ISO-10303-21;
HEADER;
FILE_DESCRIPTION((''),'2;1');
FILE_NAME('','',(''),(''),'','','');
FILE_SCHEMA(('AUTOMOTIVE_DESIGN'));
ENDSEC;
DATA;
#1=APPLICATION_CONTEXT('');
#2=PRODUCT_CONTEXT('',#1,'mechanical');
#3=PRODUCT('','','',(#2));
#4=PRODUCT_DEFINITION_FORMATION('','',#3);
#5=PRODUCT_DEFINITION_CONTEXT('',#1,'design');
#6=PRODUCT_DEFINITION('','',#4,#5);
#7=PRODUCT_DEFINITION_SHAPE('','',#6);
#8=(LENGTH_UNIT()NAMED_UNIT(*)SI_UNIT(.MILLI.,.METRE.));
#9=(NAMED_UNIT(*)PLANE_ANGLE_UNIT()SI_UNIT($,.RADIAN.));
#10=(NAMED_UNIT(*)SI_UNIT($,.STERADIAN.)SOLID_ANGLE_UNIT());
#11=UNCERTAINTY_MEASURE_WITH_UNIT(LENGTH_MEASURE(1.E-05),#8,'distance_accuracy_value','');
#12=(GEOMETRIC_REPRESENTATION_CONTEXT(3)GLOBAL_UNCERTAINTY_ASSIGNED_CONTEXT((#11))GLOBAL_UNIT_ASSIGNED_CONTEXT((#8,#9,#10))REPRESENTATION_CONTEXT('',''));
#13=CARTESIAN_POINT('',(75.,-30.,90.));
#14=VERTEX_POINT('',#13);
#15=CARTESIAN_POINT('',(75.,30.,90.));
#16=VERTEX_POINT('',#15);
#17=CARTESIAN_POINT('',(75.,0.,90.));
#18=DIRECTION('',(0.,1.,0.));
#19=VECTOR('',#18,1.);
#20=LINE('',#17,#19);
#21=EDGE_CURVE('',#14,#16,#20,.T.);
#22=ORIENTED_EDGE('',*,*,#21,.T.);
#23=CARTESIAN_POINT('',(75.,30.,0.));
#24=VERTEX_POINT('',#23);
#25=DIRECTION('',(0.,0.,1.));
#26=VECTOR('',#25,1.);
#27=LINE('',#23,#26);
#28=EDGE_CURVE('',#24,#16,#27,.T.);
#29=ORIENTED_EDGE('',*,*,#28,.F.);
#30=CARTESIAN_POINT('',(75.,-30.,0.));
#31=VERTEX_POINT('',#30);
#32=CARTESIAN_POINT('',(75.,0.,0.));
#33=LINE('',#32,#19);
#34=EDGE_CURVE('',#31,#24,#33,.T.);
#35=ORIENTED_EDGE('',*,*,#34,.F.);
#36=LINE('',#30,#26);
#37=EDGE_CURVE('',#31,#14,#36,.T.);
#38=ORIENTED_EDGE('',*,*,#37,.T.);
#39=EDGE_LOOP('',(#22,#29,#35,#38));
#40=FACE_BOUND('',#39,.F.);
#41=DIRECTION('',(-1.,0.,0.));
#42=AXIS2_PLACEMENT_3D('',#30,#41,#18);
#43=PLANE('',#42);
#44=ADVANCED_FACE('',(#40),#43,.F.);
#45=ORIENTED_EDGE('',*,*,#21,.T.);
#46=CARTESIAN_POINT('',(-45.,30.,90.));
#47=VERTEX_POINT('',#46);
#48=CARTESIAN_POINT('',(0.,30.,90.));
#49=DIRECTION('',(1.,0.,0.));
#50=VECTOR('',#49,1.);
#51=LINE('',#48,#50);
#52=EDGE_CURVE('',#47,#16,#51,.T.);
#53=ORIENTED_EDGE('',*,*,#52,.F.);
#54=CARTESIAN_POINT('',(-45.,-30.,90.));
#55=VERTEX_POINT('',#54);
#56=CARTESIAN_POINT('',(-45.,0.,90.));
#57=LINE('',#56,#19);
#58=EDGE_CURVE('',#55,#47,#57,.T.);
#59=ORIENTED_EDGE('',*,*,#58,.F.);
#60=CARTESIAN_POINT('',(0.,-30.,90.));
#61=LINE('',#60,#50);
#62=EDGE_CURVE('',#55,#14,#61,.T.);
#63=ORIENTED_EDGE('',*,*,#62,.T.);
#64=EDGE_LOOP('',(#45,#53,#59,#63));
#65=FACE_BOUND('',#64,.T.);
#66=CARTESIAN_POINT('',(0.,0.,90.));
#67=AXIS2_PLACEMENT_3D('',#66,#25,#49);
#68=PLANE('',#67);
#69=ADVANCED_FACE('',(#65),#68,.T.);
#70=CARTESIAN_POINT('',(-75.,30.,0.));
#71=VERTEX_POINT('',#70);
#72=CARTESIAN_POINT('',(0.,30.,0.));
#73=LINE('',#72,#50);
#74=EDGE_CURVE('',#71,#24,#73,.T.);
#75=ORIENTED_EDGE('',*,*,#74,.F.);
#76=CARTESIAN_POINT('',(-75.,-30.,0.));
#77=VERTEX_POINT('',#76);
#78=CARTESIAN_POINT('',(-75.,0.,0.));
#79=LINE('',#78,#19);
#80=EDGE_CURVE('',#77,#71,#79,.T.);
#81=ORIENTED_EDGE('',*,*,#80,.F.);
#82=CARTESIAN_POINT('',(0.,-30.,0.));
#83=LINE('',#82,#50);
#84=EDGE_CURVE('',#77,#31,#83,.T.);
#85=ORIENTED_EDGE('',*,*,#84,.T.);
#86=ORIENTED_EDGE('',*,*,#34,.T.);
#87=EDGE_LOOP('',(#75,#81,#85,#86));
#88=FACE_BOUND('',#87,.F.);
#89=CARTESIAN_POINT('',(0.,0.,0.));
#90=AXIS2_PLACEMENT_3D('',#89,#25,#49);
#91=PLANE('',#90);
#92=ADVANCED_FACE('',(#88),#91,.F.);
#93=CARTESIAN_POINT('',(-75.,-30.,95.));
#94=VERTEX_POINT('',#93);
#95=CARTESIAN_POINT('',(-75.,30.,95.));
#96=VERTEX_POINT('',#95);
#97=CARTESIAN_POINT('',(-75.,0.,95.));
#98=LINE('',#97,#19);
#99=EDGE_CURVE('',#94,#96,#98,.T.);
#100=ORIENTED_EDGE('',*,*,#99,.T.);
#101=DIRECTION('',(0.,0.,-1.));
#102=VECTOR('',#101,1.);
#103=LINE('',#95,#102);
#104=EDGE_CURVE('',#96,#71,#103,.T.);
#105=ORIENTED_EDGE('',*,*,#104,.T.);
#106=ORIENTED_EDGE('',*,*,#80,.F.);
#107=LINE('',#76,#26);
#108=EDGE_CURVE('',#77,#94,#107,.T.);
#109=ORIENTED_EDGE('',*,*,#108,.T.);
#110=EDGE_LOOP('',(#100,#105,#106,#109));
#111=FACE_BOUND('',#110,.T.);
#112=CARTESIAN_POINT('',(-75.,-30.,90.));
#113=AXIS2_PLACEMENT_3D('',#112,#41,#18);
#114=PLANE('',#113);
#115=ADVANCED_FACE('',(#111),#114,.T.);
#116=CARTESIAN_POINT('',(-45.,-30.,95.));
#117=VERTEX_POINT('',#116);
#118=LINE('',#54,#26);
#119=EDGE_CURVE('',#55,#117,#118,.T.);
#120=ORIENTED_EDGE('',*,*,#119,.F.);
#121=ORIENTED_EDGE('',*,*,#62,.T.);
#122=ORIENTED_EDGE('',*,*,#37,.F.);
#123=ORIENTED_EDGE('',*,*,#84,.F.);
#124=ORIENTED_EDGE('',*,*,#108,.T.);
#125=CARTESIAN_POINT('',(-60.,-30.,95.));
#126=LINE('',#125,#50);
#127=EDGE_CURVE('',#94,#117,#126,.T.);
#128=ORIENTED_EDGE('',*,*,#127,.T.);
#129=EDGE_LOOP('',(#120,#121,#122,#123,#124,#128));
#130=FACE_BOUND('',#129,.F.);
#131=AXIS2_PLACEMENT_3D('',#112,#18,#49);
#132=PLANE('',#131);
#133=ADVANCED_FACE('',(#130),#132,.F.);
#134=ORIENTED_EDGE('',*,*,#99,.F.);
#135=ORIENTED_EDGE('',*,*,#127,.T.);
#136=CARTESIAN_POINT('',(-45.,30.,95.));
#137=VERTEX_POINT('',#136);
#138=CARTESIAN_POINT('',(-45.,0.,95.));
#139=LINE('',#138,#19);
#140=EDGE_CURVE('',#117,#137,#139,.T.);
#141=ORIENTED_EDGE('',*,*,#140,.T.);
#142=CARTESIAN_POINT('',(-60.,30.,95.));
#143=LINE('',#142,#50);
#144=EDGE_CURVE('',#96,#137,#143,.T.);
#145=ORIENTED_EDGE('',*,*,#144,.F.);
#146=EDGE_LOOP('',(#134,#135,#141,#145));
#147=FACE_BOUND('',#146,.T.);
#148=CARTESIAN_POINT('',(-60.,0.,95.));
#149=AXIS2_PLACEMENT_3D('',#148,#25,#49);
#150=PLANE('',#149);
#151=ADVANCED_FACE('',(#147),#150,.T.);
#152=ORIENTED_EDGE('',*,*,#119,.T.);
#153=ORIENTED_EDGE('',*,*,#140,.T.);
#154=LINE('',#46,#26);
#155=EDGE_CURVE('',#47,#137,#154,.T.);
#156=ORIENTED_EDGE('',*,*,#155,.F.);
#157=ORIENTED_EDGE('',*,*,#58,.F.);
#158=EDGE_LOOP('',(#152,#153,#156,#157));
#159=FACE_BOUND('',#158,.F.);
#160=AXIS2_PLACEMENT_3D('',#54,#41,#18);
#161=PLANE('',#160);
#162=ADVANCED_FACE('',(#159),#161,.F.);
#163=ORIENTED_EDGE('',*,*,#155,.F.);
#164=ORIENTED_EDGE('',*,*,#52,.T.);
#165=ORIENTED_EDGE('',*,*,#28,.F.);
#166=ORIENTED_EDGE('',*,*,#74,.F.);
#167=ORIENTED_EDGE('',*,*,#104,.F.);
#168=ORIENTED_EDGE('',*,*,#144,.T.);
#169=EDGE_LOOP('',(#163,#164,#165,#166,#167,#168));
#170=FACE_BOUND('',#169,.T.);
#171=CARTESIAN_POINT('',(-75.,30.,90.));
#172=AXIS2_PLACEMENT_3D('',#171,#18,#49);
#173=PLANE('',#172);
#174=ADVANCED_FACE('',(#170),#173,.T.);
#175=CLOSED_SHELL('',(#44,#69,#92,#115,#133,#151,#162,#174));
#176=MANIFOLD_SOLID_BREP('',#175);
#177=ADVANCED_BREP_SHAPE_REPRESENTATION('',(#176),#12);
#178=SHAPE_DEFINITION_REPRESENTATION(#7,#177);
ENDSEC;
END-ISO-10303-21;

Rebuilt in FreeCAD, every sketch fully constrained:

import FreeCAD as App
import Part
import Sketcher

V = App.Vector


def add_polygon(sketch, points):
    """Adds a closed chain of lines whose ends are joined by coincident constraints."""
    first, n = sketch.GeometryCount, len(points)
    for a, b in zip(points, points[1:] + points[:1]):
        sketch.addGeometry(Part.LineSegment(App.Vector(*a, 0), App.Vector(*b, 0)), False)
    for i in range(n):
        sketch.addConstraint(Sketcher.Constraint("Coincident", first + i, 2, first + (i + 1) % n, 1))

doc = App.newDocument("Part")
body = doc.addObject("PartDesign::Body", "Body")

# Sketch on XY plane
sketch1 = body.newObject("Sketcher::SketchObject", "Sketch")
sketch1.AttachmentSupport = (doc.getObject("XY_Plane"), [""])
sketch1.MapMode = "FlatFace"
add_polygon(sketch1, [(-75, 30), (-75, -30), (75, -30), (75, 30)])  # lines 0-3
sketch1.addConstraint([
    Sketcher.Constraint("Vertical", 0),
    Sketcher.Constraint("Horizontal", 1),
    Sketcher.Constraint("Vertical", 2),
    Sketcher.Constraint("Horizontal", 3),
    Sketcher.Constraint("Symmetric", 0, 2, 2, 2, -1, 1),
    Sketcher.Constraint("DistanceX", 1, 1, 1, 2, 150.0),
    Sketcher.Constraint("DistanceY", 0, 2, 0, 1, 60.0),
])
pad1 = body.newObject("PartDesign::Pad", "Pad")
pad1.Profile = sketch1
pad1.Length = 90

# Sketch on XY plane
sketch2 = body.newObject("Sketcher::SketchObject", "Sketch001")
sketch2.AttachmentSupport = (doc.getObject("XY_Plane"), [""])
sketch2.MapMode = "FlatFace"
sketch2.AttachmentOffset = App.Placement(V(0, 0, 90), App.Rotation())
add_polygon(sketch2, [(-75, 30), (-75, -30), (-45, -30), (-45, 30)])  # lines 0-3
sketch2.addConstraint([
    Sketcher.Constraint("Vertical", 0),
    Sketcher.Constraint("Horizontal", 1),
    Sketcher.Constraint("Vertical", 2),
    Sketcher.Constraint("Horizontal", 3),
    Sketcher.Constraint("DistanceX", 1, 1, 1, 2, 30.0),
    Sketcher.Constraint("DistanceY", 0, 2, 0, 1, 60.0),
    Sketcher.Constraint("DistanceX", 0, 2, -1, 1, 75.0),
    Sketcher.Constraint("DistanceY", 0, 2, -1, 1, 30.0),
])
pad2 = body.newObject("PartDesign::Pad", "Pad001")
pad2.Profile = sketch2
pad2.Length = 5

doc.recompute()
